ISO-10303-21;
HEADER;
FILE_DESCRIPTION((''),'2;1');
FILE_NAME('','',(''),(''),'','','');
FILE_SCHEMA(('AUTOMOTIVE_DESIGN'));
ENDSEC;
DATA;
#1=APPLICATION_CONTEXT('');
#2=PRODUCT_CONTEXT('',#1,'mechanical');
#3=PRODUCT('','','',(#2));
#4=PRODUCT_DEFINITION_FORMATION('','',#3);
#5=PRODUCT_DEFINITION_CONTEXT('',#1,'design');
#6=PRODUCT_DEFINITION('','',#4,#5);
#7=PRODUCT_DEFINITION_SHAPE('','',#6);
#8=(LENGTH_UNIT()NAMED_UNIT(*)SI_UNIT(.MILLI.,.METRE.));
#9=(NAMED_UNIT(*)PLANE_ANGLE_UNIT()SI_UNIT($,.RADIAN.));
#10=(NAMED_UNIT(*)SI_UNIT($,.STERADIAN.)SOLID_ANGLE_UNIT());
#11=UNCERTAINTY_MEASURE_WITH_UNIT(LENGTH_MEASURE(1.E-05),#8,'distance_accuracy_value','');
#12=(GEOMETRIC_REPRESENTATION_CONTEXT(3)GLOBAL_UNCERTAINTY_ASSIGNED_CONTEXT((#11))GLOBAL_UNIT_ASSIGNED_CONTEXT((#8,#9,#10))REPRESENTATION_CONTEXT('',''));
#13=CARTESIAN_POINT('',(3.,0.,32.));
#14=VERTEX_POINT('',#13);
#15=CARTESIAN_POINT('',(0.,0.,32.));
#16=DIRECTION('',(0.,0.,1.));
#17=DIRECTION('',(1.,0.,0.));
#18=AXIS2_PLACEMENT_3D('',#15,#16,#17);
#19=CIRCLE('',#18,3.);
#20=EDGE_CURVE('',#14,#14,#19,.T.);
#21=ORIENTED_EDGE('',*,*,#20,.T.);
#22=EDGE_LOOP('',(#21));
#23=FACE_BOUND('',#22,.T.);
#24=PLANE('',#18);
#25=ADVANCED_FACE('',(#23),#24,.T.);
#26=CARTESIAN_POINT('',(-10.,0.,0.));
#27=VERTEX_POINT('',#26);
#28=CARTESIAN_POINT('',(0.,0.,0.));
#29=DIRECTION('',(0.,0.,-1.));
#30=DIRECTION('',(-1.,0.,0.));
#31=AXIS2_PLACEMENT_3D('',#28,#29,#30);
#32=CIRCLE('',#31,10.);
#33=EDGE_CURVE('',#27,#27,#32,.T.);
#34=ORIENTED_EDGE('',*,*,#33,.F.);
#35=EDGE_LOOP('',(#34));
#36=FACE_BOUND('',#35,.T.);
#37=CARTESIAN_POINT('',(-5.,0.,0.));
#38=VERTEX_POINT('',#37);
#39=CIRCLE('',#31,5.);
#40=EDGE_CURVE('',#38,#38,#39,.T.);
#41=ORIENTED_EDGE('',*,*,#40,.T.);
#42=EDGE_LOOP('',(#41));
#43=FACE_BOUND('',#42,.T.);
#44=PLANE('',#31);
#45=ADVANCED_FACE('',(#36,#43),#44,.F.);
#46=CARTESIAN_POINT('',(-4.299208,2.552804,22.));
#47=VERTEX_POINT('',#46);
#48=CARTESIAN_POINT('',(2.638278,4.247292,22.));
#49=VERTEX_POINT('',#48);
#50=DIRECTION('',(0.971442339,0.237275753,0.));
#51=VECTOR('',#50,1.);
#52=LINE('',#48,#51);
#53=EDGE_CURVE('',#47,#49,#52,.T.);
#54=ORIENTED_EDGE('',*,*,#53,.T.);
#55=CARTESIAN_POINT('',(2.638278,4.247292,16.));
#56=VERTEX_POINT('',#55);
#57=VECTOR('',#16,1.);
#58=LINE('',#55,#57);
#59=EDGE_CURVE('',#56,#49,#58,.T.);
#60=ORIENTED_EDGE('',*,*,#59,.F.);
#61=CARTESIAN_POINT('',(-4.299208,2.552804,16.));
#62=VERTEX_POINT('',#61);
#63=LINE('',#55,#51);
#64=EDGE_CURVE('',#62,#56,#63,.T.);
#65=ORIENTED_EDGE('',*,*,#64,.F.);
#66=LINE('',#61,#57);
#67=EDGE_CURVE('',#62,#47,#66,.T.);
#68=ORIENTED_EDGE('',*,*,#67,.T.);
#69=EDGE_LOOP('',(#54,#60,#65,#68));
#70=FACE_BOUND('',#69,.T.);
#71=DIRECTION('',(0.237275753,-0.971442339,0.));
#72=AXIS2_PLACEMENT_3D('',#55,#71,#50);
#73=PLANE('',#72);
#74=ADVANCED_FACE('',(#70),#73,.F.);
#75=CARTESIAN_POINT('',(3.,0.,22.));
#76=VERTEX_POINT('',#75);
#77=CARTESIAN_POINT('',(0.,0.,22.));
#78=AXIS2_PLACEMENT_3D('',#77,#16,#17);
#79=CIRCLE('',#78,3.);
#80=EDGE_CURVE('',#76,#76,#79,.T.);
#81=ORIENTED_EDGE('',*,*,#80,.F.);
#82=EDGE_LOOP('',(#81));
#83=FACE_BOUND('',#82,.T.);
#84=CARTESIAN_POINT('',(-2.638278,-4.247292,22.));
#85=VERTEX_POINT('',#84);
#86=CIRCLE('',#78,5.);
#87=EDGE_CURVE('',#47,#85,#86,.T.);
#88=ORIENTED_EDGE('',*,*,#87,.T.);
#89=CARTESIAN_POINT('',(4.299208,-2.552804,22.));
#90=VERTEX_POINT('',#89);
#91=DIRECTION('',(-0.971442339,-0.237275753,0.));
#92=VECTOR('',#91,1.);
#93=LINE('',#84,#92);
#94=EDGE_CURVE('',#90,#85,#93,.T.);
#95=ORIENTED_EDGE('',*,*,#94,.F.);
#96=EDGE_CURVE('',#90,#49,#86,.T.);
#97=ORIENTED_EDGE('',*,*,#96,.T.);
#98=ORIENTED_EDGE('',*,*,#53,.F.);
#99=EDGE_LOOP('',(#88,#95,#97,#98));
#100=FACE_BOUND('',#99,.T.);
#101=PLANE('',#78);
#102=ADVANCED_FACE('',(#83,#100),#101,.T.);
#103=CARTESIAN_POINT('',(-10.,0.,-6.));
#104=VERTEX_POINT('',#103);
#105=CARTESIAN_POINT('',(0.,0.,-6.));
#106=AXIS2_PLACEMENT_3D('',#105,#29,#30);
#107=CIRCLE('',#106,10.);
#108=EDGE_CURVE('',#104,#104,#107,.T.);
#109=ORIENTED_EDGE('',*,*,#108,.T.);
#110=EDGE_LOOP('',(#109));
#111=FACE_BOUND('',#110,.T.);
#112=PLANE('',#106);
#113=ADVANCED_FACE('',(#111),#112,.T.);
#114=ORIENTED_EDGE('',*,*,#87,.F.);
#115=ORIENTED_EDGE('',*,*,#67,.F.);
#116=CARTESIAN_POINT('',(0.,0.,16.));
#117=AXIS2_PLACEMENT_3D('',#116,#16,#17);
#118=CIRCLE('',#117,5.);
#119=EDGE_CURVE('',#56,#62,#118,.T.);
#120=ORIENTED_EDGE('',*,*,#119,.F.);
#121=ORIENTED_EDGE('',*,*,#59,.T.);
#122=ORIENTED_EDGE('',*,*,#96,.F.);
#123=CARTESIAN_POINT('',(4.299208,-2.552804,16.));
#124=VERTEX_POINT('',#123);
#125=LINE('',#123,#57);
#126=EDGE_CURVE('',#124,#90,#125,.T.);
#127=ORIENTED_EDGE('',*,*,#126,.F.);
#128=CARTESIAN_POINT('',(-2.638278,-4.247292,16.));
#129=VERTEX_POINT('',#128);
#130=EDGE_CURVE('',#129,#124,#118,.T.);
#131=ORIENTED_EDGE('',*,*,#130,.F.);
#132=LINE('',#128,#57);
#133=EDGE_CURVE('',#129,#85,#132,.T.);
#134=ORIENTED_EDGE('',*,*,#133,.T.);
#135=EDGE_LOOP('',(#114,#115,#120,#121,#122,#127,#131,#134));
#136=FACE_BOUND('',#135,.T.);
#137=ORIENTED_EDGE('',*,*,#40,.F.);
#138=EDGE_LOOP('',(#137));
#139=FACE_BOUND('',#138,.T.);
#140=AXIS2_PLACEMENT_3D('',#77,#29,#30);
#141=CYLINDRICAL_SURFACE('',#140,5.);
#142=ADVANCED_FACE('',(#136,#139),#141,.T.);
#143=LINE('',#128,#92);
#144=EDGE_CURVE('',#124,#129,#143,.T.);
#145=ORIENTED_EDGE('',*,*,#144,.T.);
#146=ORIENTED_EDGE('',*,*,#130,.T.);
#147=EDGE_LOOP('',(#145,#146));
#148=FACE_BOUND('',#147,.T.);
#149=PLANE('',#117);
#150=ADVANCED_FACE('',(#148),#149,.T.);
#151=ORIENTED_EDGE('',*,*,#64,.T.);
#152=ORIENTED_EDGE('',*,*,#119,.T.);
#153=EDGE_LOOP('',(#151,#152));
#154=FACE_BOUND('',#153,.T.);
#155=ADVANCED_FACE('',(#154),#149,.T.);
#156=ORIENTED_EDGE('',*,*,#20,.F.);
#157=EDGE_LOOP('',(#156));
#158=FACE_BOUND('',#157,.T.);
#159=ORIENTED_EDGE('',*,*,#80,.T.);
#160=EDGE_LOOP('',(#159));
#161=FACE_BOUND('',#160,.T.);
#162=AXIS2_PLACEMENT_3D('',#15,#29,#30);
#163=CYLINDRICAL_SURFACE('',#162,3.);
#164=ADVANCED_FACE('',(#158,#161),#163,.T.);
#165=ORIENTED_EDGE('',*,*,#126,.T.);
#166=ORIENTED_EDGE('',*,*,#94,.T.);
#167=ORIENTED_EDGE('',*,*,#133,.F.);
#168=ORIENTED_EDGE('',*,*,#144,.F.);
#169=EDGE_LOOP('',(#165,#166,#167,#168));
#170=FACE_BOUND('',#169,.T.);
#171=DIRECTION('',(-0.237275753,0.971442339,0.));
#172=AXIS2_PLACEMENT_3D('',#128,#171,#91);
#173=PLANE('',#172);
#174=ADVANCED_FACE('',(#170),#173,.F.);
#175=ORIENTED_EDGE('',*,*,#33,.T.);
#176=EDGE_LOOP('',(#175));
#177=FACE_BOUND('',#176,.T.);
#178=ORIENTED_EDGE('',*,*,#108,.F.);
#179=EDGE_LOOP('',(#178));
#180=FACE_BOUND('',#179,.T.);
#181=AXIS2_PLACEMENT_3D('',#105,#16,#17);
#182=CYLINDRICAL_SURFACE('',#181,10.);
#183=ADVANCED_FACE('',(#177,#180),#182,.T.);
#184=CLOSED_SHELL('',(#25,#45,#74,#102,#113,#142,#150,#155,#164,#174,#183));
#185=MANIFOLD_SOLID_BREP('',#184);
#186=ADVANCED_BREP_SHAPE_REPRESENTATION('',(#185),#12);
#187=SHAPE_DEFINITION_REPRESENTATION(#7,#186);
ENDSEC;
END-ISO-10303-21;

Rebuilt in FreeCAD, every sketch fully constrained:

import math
import FreeCAD as App
import Part
import Sketcher

doc = App.newDocument("Part")
body = doc.addObject("PartDesign::Body", "Body")

sketch1 = doc.addObject("Sketcher::SketchObject", "Sketch")
body.addObject(sketch1)
sketch1.AttachmentSupport = (doc.XY_Plane, [""])
sketch1.MapMode = "FlatFace"
sketch1.addGeometry(Part.Circle(App.Vector(0, 0, 0), App.Vector(0, 0, 1), 5), False)
sketch1.addConstraint([
    Sketcher.Constraint("Coincident", 0, 3, -1, 1),
    Sketcher.Constraint("Diameter", 0, 10.0),
])
pad1 = doc.addObject("PartDesign::Pad", "Pad")
body.addObject(pad1)
pad1.Profile = sketch1
pad1.Length = 22

sketch2 = doc.addObject("Sketcher::SketchObject", "Sketch001")
body.addObject(sketch2)
sketch2.AttachmentSupport = (doc.XY_Plane, [""])
sketch2.MapMode = "FlatFace"
sketch2.AttachmentOffset = App.Placement(App.Vector(0, 0, 16), App.Rotation())
sketch2.addGeometry([
    Part.LineSegment(App.Vector(-4.299208, 2.552804, 0), App.Vector(2.638278, 4.247292, 0)),
    Part.ArcOfCircle(Part.Circle(App.Vector(0, 0, 0), App.Vector(0, 0, 1), 5), math.radians(58.152813), math.radians(149.298805)),
    Part.LineSegment(App.Vector(4.299208, -2.552804, 0), App.Vector(-2.638278, -4.247292, 0)),
    Part.ArcOfCircle(Part.Circle(App.Vector(0, 0, 0), App.Vector(0, 0, 1), 5), math.radians(-121.847187), math.radians(-30.701195)),
], False)
sketch2.addConstraint([
    Sketcher.Constraint("Coincident", 0, 1, 1, 2),
    Sketcher.Constraint("Coincident", 1, 1, 0, 2),
    Sketcher.Constraint("Coincident", 2, 1, 3, 2),
    Sketcher.Constraint("Coincident", 3, 1, 2, 2),
    Sketcher.Constraint("Coincident", 1, 3, -1, 1),
    Sketcher.Constraint("Coincident", 3, 3, -1, 1),
    Sketcher.Constraint("Equal", 1, 3),
    Sketcher.Constraint("Parallel", 0, 2),
    Sketcher.Constraint("Equal", 0, 2),
    Sketcher.Constraint("Radius", 1, 5.0),
    Sketcher.Constraint("Distance", 0, 7.141428),
    Sketcher.Constraint("DistanceX", 0, 1, -1, 1, 4.299208),
])
pocket1 = doc.addObject("PartDesign::Pocket", "Pocket")
body.addObject(pocket1)
pocket1.Profile = sketch2
pocket1.Length = 6
pocket1.Reversed = True

sketch3 = doc.addObject("Sketcher::SketchObject", "Sketch002")
body.addObject(sketch3)
sketch3.AttachmentSupport = (doc.XY_Plane, [""])
sketch3.MapMode = "FlatFace"
sketch3.AttachmentOffset = App.Placement(App.Vector(0, 0, 22), App.Rotation())
sketch3.addGeometry(Part.Circle(App.Vector(0, 0, 0), App.Vector(0, 0, 1), 3), False)
sketch3.addConstraint([
    Sketcher.Constraint("Coincident", 0, 3, -1, 1),
    Sketcher.Constraint("Diameter", 0, 6.0),
])
pad2 = doc.addObject("PartDesign::Pad", "Pad001")
body.addObject(pad2)
pad2.Profile = sketch3
pad2.Length = 10

sketch4 = doc.addObject("Sketcher::SketchObject", "Sketch003")
body.addObject(sketch4)
sketch4.AttachmentSupport = (doc.XY_Plane, [""])
sketch4.MapMode = "FlatFace"
sketch4.addGeometry(Part.Circle(App.Vector(0, 0, 0), App.Vector(0, 0, 1), 10), False)
sketch4.addConstraint([
    Sketcher.Constraint("Coincident", 0, 3, -1, 1),
    Sketcher.Constraint("Diameter", 0, 20.0),
])
pad3 = doc.addObject("PartDesign::Pad", "Pad002")
body.addObject(pad3)
pad3.Profile = sketch4
pad3.Length = 6
pad3.Reversed = True

doc.recompute()
